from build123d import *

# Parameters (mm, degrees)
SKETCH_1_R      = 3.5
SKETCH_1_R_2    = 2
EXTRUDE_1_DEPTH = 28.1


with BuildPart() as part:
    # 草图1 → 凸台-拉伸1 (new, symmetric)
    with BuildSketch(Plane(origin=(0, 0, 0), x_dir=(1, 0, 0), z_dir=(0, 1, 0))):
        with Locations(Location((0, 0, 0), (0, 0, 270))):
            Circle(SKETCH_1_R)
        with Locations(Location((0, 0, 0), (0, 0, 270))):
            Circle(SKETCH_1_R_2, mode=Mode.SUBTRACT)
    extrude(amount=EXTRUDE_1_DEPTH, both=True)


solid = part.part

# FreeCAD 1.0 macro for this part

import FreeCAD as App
import Part
import Sketcher

V = App.Vector
Q = App.Units.Quantity

doc = App.newDocument("Part")
body = doc.addObject("PartDesign::Body", "Body")

sketch1 = body.newObject("Sketcher::SketchObject", "Sketch")
sketch1.AttachmentSupport = (doc.getObject("XZ_Plane"), [""])
sketch1.MapMode = "FlatFace"
sketch1.addGeometry([
    Part.Circle(V(0, 0, 0), V(0, 0, 1), 3.5),
    Part.Circle(V(0, 0, 0), V(0, 0, 1), 2),
], False)
sketch1.addConstraint([
    Sketcher.Constraint("Coincident", 0, 3, -1, 1),
    Sketcher.Constraint("Coincident", 1, 3, -1, 1),
    Sketcher.Constraint("Diameter", 0, Q("7 mm")),
    Sketcher.Constraint("Diameter", 1, Q("4 mm")),
])
pad1 = body.newObject("PartDesign::Pad", "Pad")
pad1.Profile = sketch1
pad1.Length = 56.2
pad1.Midplane = True

doc.recompute()
